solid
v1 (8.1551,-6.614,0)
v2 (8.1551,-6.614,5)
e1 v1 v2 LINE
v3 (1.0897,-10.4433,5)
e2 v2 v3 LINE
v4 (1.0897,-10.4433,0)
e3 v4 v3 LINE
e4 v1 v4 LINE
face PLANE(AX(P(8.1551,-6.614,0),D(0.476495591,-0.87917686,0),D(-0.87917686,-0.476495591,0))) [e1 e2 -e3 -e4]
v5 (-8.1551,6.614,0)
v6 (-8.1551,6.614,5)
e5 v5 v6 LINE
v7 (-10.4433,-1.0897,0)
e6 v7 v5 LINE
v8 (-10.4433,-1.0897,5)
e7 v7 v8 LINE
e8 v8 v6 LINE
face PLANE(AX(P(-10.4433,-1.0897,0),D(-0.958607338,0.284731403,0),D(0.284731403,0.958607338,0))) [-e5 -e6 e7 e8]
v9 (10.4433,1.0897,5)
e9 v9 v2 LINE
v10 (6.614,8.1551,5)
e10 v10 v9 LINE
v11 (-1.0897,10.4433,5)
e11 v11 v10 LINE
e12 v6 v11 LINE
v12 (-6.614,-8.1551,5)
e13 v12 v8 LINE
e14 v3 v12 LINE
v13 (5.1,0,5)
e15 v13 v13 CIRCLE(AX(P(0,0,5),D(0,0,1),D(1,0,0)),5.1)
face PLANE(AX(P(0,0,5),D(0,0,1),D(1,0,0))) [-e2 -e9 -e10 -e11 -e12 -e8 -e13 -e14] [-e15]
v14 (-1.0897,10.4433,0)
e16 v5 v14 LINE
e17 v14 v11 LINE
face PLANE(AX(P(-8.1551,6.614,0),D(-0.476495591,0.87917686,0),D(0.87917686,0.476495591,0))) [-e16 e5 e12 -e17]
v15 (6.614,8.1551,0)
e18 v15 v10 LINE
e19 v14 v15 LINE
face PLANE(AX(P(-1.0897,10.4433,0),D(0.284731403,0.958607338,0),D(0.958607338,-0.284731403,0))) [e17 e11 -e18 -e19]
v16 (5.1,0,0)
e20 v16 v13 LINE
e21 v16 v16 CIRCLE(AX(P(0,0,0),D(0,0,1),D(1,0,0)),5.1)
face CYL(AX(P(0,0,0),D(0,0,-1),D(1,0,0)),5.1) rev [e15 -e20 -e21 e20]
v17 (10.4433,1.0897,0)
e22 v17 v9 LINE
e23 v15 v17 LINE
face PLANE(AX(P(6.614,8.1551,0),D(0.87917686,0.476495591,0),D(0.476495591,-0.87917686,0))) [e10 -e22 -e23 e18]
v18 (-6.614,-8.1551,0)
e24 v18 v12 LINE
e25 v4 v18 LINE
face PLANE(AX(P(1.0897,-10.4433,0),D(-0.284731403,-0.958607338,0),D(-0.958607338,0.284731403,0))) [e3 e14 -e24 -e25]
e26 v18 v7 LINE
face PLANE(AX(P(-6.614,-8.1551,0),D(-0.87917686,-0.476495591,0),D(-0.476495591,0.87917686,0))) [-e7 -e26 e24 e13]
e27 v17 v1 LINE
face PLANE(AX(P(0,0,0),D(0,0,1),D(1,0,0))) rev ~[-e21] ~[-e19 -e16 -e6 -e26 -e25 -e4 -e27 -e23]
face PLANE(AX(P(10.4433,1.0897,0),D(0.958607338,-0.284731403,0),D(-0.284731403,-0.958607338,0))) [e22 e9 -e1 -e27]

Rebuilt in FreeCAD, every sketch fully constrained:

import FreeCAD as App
import Part
import Sketcher
Q = App.Units.Quantity

doc = App.newDocument("Part")
body = doc.addObject("PartDesign::Body", "Body")

# Sketch on XY plane
sketch1 = body.newObject("Sketcher::SketchObject", "Sketch")
sketch1.AttachmentSupport = (doc.getObject("XY_Plane"), [""])
sketch1.MapMode = "FlatFace"
sketch1.addGeometry(Part.LineSegment(App.Vector(8, -7, 0), App.Vector(10, 1, 0)), False)
sketch1.addGeometry(Part.LineSegment(App.Vector(10, 1, 0), App.Vector(7, 8, 0)), False)
sketch1.addGeometry(Part.LineSegment(App.Vector(7, 8, 0), App.Vector(-1, 10, 0)), False)
sketch1.addGeometry(Part.LineSegment(App.Vector(-1, 10, 0), App.Vector(-8, 7, 0)), False)
sketch1.addGeometry(Part.LineSegment(App.Vector(-8, 7, 0), App.Vector(-10, -1, 0)), False)
sketch1.addGeometry(Part.LineSegment(App.Vector(-10, -1, 0), App.Vector(-7, -8, 0)), False)
sketch1.addGeometry(Part.LineSegment(App.Vector(-7, -8, 0), App.Vector(1, -10, 0)), False)
sketch1.addGeometry(Part.LineSegment(App.Vector(1, -10, 0), App.Vector(8, -7, 0)), False)
sketch1.addGeometry(Part.Circle(App.Vector(0, 0, 0), App.Vector(0, 0, 1), 5), False)
sketch1.addConstraint(Sketcher.Constraint("Coincident", 0, 2, 1, 1))
sketch1.addConstraint(Sketcher.Constraint("Coincident", 1, 2, 2, 1))
sketch1.addConstraint(Sketcher.Constraint("Coincident", 2, 2, 3, 1))
sketch1.addConstraint(Sketcher.Constraint("Coincident", 3, 2, 4, 1))
sketch1.addConstraint(Sketcher.Constraint("Coincident", 4, 2, 5, 1))
sketch1.addConstraint(Sketcher.Constraint("Coincident", 5, 2, 6, 1))
sketch1.addConstraint(Sketcher.Constraint("Coincident", 6, 2, 7, 1))
sketch1.addConstraint(Sketcher.Constraint("Coincident", 7, 2, 0, 1))
sketch1.addConstraint(Sketcher.Constraint("Coincident", 8, 3, -1, 1))
sketch1.addConstraint(Sketcher.Constraint("Symmetric", 0, 2, 4, 2, -1, 1))
sketch1.addConstraint(Sketcher.Constraint("Symmetric", 1, 2, 5, 2, -1, 1))
sketch1.addConstraint(Sketcher.Constraint("Symmetric", 2, 2, 6, 2, -1, 1))
sketch1.addConstraint(Sketcher.Constraint("Symmetric", 3, 2, 7, 2, -1, 1))
sketch1.addConstraint(Sketcher.Constraint("Perpendicular", 0, 2))
sketch1.addConstraint(Sketcher.Constraint("Perpendicular", 1, 3))
sketch1.addConstraint(Sketcher.Constraint("Equal", 0, 1))
sketch1.addConstraint(Sketcher.Constraint("Equal", 1, 2))
sketch1.addConstraint(Sketcher.Constraint("Equal", 2, 3))
sketch1.addConstraint(Sketcher.Constraint("Diameter", 8, Q("10.2 mm")))
sketch1.addConstraint(Sketcher.Constraint("DistanceX", -1, 1, 1, 2, Q("6.614 mm")))
sketch1.addConstraint(Sketcher.Constraint("DistanceY", -1, 1, 1, 2, Q("8.155 mm")))
sketch1.addConstraint(Sketcher.Constraint("DistanceX", 2, 2, 0, 2, Q("11.533 mm")))
pad1 = body.newObject("PartDesign::Pad", "Pad")
pad1.Profile = sketch1
pad1.Length = 5

doc.recompute()
